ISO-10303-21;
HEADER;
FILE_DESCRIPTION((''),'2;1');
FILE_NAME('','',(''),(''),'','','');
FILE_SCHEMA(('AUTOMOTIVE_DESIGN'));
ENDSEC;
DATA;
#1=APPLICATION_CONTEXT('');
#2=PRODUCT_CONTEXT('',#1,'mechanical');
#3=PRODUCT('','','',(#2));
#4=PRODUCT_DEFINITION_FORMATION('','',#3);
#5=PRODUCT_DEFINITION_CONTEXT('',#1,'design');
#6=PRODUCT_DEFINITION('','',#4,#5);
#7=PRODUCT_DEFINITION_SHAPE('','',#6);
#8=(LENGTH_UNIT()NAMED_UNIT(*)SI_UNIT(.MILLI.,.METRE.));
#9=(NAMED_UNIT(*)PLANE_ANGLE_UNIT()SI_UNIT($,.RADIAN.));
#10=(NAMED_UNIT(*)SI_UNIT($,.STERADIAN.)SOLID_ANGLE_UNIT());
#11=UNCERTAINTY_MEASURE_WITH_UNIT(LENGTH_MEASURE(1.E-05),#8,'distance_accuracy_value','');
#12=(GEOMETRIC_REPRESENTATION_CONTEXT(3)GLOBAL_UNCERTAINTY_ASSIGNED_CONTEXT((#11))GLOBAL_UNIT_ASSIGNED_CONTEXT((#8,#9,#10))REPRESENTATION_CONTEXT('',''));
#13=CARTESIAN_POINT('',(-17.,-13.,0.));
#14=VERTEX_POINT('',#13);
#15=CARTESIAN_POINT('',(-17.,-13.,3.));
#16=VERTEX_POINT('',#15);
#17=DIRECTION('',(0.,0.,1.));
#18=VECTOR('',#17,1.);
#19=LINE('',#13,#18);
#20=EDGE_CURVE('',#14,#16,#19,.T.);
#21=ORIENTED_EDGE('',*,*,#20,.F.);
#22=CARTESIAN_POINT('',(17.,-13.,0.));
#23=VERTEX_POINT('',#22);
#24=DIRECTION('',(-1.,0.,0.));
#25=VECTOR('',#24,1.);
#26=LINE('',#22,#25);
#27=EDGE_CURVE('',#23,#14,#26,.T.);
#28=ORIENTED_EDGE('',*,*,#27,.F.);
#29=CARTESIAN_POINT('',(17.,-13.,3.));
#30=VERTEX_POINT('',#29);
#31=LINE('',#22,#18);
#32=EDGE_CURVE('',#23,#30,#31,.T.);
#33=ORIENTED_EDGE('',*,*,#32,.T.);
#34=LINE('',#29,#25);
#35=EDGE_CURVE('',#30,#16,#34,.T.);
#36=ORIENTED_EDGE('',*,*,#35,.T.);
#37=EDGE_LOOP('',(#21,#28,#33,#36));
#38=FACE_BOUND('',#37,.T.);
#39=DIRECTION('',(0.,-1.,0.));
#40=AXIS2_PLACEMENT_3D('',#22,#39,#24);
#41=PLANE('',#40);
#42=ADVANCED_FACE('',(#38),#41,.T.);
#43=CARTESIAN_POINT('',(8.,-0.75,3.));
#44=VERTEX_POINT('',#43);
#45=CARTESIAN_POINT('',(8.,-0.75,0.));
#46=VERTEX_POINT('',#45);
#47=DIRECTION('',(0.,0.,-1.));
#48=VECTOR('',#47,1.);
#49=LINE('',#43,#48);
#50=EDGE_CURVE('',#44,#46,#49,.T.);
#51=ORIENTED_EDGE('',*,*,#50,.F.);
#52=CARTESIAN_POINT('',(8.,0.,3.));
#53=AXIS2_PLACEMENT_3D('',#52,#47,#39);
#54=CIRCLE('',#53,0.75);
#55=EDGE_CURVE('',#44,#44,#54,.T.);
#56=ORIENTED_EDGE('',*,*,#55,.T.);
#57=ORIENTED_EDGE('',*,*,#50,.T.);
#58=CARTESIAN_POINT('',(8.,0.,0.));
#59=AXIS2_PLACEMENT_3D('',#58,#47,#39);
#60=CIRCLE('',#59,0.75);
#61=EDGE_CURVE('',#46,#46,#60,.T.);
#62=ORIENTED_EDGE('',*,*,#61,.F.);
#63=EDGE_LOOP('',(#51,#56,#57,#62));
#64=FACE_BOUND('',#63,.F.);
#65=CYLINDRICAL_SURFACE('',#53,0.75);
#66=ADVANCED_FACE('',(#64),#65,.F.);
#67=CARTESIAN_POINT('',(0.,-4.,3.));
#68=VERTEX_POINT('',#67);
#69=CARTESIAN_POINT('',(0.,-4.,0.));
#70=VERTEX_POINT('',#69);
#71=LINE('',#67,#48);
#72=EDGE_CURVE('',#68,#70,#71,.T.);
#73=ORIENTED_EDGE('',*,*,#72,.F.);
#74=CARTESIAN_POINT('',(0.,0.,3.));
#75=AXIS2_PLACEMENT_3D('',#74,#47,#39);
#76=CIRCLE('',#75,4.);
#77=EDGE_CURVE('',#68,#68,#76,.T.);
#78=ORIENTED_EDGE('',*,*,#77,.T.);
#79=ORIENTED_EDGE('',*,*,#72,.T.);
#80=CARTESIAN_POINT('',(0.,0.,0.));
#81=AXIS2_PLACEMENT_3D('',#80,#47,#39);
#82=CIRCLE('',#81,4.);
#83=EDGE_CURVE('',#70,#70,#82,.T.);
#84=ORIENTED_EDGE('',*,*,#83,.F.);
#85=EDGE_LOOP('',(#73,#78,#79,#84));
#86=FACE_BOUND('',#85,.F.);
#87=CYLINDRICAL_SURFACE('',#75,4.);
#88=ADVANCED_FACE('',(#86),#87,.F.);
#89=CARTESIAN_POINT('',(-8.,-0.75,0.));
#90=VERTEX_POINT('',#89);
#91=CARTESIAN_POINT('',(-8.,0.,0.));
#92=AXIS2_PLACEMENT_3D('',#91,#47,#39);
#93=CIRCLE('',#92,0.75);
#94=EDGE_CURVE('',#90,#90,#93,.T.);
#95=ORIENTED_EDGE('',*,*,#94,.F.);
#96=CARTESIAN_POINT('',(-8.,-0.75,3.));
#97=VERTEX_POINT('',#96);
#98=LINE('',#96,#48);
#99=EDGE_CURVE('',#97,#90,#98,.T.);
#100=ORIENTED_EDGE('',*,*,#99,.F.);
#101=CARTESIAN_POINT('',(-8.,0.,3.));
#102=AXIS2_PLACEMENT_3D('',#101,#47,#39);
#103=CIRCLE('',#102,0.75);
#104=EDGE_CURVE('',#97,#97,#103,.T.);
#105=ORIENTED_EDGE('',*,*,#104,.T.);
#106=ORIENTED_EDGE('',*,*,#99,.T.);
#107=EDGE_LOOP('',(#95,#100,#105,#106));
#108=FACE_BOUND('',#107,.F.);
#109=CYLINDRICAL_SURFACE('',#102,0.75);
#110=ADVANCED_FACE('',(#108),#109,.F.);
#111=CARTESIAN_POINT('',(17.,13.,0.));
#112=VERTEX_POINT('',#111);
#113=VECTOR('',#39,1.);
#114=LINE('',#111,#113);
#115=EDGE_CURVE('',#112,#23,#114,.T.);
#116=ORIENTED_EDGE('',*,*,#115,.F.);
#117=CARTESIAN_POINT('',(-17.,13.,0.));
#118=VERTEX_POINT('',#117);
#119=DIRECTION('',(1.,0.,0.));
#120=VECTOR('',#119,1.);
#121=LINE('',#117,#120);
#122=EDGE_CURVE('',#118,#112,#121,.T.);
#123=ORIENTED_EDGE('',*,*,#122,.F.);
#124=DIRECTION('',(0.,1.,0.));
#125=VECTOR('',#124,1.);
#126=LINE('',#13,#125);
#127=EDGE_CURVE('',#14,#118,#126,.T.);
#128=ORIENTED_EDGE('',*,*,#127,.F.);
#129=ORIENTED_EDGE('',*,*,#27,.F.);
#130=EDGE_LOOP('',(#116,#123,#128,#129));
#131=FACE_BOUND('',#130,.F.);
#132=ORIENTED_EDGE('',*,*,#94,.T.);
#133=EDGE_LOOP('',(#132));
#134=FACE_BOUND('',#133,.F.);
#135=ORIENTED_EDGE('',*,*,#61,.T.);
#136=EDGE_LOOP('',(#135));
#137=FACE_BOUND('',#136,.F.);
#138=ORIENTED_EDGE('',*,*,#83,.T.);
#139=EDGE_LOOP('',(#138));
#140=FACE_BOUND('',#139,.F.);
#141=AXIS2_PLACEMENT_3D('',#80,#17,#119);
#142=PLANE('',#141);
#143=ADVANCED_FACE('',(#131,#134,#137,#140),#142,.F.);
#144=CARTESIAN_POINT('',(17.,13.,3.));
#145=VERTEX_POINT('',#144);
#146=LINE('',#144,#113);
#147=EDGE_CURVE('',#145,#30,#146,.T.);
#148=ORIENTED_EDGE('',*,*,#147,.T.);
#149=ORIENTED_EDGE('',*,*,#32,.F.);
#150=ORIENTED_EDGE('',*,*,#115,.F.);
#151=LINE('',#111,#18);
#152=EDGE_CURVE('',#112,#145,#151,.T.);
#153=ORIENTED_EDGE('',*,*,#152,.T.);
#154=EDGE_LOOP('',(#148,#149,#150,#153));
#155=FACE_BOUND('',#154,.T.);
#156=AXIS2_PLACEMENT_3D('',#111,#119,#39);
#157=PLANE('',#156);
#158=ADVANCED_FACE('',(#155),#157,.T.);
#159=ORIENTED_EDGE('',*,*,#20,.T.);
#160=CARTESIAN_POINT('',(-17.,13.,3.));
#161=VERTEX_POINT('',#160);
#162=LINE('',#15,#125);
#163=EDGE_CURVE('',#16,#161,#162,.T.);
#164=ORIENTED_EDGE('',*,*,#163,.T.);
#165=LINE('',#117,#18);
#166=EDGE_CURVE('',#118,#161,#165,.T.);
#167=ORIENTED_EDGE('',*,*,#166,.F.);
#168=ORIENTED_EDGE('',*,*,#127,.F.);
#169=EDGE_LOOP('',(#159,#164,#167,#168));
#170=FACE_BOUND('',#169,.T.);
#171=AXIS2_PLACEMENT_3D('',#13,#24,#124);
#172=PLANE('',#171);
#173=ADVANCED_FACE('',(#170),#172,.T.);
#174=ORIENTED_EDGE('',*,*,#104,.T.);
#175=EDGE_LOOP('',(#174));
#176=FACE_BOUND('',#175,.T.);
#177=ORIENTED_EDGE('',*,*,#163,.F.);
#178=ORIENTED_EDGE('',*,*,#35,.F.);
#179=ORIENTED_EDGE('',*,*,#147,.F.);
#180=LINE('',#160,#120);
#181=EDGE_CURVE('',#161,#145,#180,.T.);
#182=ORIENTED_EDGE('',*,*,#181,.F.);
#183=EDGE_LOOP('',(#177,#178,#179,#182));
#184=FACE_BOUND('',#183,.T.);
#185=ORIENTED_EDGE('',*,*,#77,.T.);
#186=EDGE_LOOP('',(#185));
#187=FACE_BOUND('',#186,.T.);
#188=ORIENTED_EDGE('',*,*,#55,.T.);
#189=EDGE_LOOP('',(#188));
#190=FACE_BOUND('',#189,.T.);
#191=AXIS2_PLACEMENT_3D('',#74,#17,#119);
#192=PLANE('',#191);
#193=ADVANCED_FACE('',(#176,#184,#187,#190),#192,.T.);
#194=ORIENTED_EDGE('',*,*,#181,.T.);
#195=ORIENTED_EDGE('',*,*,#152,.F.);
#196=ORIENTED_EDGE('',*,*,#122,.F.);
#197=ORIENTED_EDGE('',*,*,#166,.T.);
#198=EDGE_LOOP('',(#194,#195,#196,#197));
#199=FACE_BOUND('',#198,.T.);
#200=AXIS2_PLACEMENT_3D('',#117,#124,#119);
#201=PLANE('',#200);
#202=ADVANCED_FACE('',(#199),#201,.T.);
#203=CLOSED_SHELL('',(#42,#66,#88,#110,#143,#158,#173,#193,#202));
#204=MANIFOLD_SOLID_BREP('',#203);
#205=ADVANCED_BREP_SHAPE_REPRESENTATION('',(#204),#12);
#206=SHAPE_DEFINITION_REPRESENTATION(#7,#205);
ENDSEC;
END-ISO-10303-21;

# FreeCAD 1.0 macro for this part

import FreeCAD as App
import Part
import Sketcher
Q = App.Units.Quantity


def add_polygon(sketch, points):
    """Adds a closed chain of lines whose ends are joined by coincident constraints."""
    first, n = sketch.GeometryCount, len(points)
    for a, b in zip(points, points[1:] + points[:1]):
        sketch.addGeometry(Part.LineSegment(App.Vector(*a, 0), App.Vector(*b, 0)), False)
    for i in range(n):
        sketch.addConstraint(Sketcher.Constraint("Coincident", first + i, 2, first + (i + 1) % n, 1))

doc = App.newDocument("Part")
body = doc.addObject("PartDesign::Body", "Body")

sketch1 = body.newObject("Sketcher::SketchObject", "Sketch")
sketch1.AttachmentSupport = (doc.getObject("XY_Plane"), [""])
sketch1.MapMode = "FlatFace"
add_polygon(sketch1, [(-17, -13), (17, -13), (17, 13), (-17, 13)])
sketch1.addConstraint([
    Sketcher.Constraint("Horizontal", 0),
    Sketcher.Constraint("Vertical", 1),
    Sketcher.Constraint("Horizontal", 2),
    Sketcher.Constraint("Vertical", 3),
    Sketcher.Constraint("Symmetric", 0, 2, 2, 2, -1, 1),
    Sketcher.Constraint("DistanceX", 0, 1, 0, 2, Q("34 mm")),
    Sketcher.Constraint("DistanceY", 1, 1, 1, 2, Q("26 mm")),
])
pad1 = body.newObject("PartDesign::Pad", "Pad")
pad1.Profile = sketch1
pad1.Length = 3

sketch2 = body.newObject("Sketcher::SketchObject", "Sketch001")
sketch2.AttachmentSupport = (doc.getObject("XY_Plane"), [""])
sketch2.MapMode = "FlatFace"
sketch2.AttachmentOffset = App.Placement(App.Vector(0, 0, 3), App.Rotation())
sketch2.addGeometry([
    Part.Circle(App.Vector(-8, 0, 0), App.Vector(0, 0, 1), 0.8),
    Part.Circle(App.Vector(8, 0, 0), App.Vector(0, 0, 1), 0.8),
], False)
sketch2.addConstraint([
    Sketcher.Constraint("Equal", 0, 1),
    Sketcher.Constraint("Symmetric", 0, 3, 1, 3, -1, 1),
    Sketcher.Constraint("PointOnObject", 0, 3, -1),
    Sketcher.Constraint("Diameter", 0, Q("1.5 mm")),
    Sketcher.Constraint("DistanceX", 0, 3, -1, 1, Q("8 mm")),
])
doc.recompute()
hole = body.newObject("PartDesign::Hole", "Hole")
hole.Profile = sketch2
hole.ThreadType = "None"
hole.Diameter = 1.5
hole.DepthType = "ThroughAll"

sketch3 = body.newObject("Sketcher::SketchObject", "Sketch002")
sketch3.AttachmentSupport = (doc.getObject("XY_Plane"), [""])
sketch3.MapMode = "FlatFace"
sketch3.AttachmentOffset = App.Placement(App.Vector(0, 0, 3), App.Rotation())
sketch3.addGeometry(Part.Circle(App.Vector(0, 0, 0), App.Vector(0, 0, 1), 4), False)
sketch3.addConstraint([
    Sketcher.Constraint("Coincident", 0, 3, -1, 1),
    Sketcher.Constraint("Diameter", 0, Q("8 mm")),
])
doc.recompute()
hole2 = body.newObject("PartDesign::Hole", "Hole001")
hole2.Profile = sketch3
hole2.ThreadType = "None"
hole2.Diameter = 8
hole2.DepthType = "ThroughAll"

doc.recompute()
